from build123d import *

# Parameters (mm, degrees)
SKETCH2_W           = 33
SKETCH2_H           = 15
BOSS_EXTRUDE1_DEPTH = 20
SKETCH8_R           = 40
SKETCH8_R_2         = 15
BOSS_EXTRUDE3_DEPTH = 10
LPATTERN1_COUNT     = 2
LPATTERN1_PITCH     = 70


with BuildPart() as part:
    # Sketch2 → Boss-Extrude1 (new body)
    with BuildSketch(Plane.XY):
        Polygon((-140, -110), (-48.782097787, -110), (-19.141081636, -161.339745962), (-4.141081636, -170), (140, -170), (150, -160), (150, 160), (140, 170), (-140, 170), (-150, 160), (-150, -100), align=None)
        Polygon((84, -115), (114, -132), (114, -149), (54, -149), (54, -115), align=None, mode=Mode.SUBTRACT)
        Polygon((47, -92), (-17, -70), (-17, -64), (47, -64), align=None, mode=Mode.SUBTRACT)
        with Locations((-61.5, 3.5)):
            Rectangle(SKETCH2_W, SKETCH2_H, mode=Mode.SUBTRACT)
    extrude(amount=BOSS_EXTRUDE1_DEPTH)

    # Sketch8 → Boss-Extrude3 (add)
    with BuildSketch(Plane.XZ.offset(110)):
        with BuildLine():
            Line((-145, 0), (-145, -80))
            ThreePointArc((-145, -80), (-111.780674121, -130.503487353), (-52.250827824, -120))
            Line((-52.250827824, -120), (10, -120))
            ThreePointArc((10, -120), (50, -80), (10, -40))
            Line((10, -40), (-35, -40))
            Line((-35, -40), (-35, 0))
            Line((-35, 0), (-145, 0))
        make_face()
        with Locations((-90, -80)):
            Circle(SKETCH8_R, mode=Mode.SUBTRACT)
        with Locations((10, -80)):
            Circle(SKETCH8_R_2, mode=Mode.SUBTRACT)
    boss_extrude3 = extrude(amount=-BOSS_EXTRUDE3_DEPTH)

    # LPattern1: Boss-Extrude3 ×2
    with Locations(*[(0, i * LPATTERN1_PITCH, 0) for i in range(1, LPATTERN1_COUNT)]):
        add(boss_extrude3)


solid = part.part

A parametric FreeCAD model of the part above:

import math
import FreeCAD as App
import Part
import Sketcher

V = App.Vector
Q = App.Units.Quantity


def add_polygon(sketch, points):
    """Adds a closed chain of lines whose ends are joined by coincident constraints."""
    first, n = sketch.GeometryCount, len(points)
    for a, b in zip(points, points[1:] + points[:1]):
        sketch.addGeometry(Part.LineSegment(App.Vector(*a, 0), App.Vector(*b, 0)), False)
    for i in range(n):
        sketch.addConstraint(Sketcher.Constraint("Coincident", first + i, 2, first + (i + 1) % n, 1))

doc = App.newDocument("Part")
body = doc.addObject("PartDesign::Body", "Body")

# Sketch on XY plane
sketch1 = body.newObject("Sketcher::SketchObject", "Sketch")
sketch1.AttachmentSupport = (doc.getObject("XY_Plane"), [""])
sketch1.MapMode = "FlatFace"
add_polygon(sketch1, [(-140, -110), (-49, -110), (-19, -161), (-4, -170), (140, -170), (150, -160), (150, 160), (140, 170), (-140, 170), (-150, 160), (-150, -100)])  # lines 0-10
add_polygon(sketch1, [(47, -64), (47, -92), (-17, -70), (-17, -64)])  # lines 11-14
add_polygon(sketch1, [(54, -115), (84, -115), (114, -132), (114, -149), (54, -149)])  # lines 15-19
add_polygon(sketch1, [(-45, -4), (-78, -4), (-78, 11), (-45, 11)])  # lines 20-23
sketch1.addConstraint([
    Sketcher.Constraint("Horizontal", 0),
    Sketcher.Constraint("Horizontal", 3),
    Sketcher.Constraint("Vertical", 5),
    Sketcher.Constraint("Horizontal", 7),
    Sketcher.Constraint("Vertical", 9),
    Sketcher.Constraint("Vertical", 11),
    Sketcher.Constraint("Vertical", 13),
    Sketcher.Constraint("Horizontal", 14),
    Sketcher.Constraint("Horizontal", 15),
    Sketcher.Constraint("Vertical", 17),
    Sketcher.Constraint("Horizontal", 18),
    Sketcher.Constraint("Vertical", 19),
    Sketcher.Constraint("Horizontal", 20),
    Sketcher.Constraint("Vertical", 21),
    Sketcher.Constraint("Horizontal", 22),
    Sketcher.Constraint("Vertical", 23),
    Sketcher.Constraint("Symmetric", 3, 2, 7, 2, -1, 1),
    Sketcher.Constraint("Symmetric", 4, 2, 8, 2, -1, 1),
    Sketcher.Constraint("Perpendicular", 4, 6),
    Sketcher.Constraint("Perpendicular", 8, 10),
    Sketcher.Constraint("Horizontal", 5, 2, 8, 2),
    Sketcher.Constraint("Vertical", 3, 2, 6, 2),
    Sketcher.Constraint("Vertical", 7, 2, 10, 2),
    Sketcher.Constraint("DistanceX", 7, 2, 7, 1, Q("280 mm")),
    Sketcher.Constraint("DistanceX", 14, 1, 14, 2, Q("64 mm")),
    Sketcher.Constraint("DistanceX", 15, 1, 15, 2, Q("30 mm")),
    Sketcher.Constraint("DistanceX", 18, 2, 18, 1, Q("60 mm")),
    Sketcher.Constraint("DistanceX", 20, 2, 20, 1, Q("33 mm")),
    Sketcher.Constraint("DistanceY", 5, 1, 5, 2, Q("320 mm")),
    Sketcher.Constraint("DistanceY", 9, 2, 9, 1, Q("260 mm")),
    Sketcher.Constraint("DistanceY", 11, 2, 11, 1, Q("28 mm")),
    Sketcher.Constraint("DistanceY", 13, 1, 13, 2, Q("6 mm")),
    Sketcher.Constraint("DistanceY", 17, 2, 17, 1, Q("17 mm")),
    Sketcher.Constraint("DistanceY", 19, 1, 19, 2, Q("34 mm")),
    Sketcher.Constraint("DistanceY", 21, 1, 21, 2, Q("15 mm")),
    Sketcher.Constraint("Angle", 1, Q("-60 deg")),
    Sketcher.Constraint("Angle", 2, Q("-30 deg")),
    Sketcher.Constraint("DistanceY", 0, 2, -1, 1, Q("110 mm")),
    Sketcher.Constraint("DistanceX", -1, 1, 11, 2, Q("47 mm")),
    Sketcher.Constraint("DistanceY", 11, 2, -1, 1, Q("92 mm")),
    Sketcher.Constraint("DistanceX", -1, 1, 15, 2, Q("84 mm")),
    Sketcher.Constraint("DistanceY", 15, 2, -1, 1, Q("115 mm")),
    Sketcher.Constraint("DistanceX", 20, 2, -1, 1, Q("78 mm")),
    Sketcher.Constraint("DistanceY", 20, 2, -1, 1, Q("4 mm")),
    Sketcher.Constraint("DistanceX", 1, 2, 2, 2, Q("15 mm")),
    Sketcher.Constraint("DistanceX", 3, 1, 3, 2, Q("144.141082 mm")),
])
pad1 = body.newObject("PartDesign::Pad", "Pad")
pad1.Profile = sketch1
pad1.Length = 20

# Sketch on XZ plane
sketch2 = body.newObject("Sketcher::SketchObject", "Sketch001")
sketch2.AttachmentSupport = (doc.getObject("XZ_Plane"), [""])
sketch2.MapMode = "FlatFace"
sketch2.AttachmentOffset = App.Placement(V(0, 0, 110), App.Rotation())
sketch2.addGeometry([
    Part.LineSegment(V(-145, 0, 0), V(-145, -80, 0)),  # 0
    Part.ArcOfCircle(Part.Circle(V(-90, -80, 0), V(0, 0, 1), 55), math.radians(180), math.radians(313)),  # 1
    Part.LineSegment(V(-52, -120, 0), V(10, -120, 0)),  # 2
    Part.ArcOfCircle(Part.Circle(V(10, -80, 0), V(0, 0, 1), 40), math.radians(-90), math.radians(90)),  # 3
    Part.LineSegment(V(10, -40, 0), V(-35, -40, 0)),  # 4
    Part.LineSegment(V(-35, -40, 0), V(-35, 0, 0)),  # 5
    Part.LineSegment(V(-35, 0, 0), V(-145, 0, 0)),  # 6
    Part.Circle(V(-90, -80, 0), V(0, 0, 1), 40),  # 7
    Part.Circle(V(10, -80, 0), V(0, 0, 1), 15),  # 8
], False)
sketch2.addConstraint([
    Sketcher.Constraint("Tangent", 0, 2, 1, 1),
    Sketcher.Constraint("Coincident", 1, 2, 2, 1),
    Sketcher.Constraint("Tangent", 2, 2, 3, 1),
    Sketcher.Constraint("Tangent", 3, 2, 4, 1),
    Sketcher.Constraint("Coincident", 4, 2, 5, 1),
    Sketcher.Constraint("Coincident", 5, 2, 6, 1),
    Sketcher.Constraint("Coincident", 6, 2, 0, 1),
    Sketcher.Constraint("Vertical", 0),
    Sketcher.Constraint("Horizontal", 2),
    Sketcher.Constraint("Horizontal", 4),
    Sketcher.Constraint("Vertical", 5),
    Sketcher.Constraint("Horizontal", 6),
    Sketcher.Constraint("Coincident", 7, 3, 1, 3),
    Sketcher.Constraint("Coincident", 8, 3, 3, 3),
    Sketcher.Constraint("Equal", 3, 7),
    Sketcher.Constraint("PointOnObject", 5, 2, -1),
    Sketcher.Constraint("Horizontal", 1, 3, 3, 3),
    Sketcher.Constraint("Diameter", 7, Q("80 mm")),
    Sketcher.Constraint("Diameter", 8, Q("30 mm")),
    Sketcher.Constraint("Radius", 1, Q("55 mm")),
    Sketcher.Constraint("DistanceX", 4, 2, 4, 1, Q("45 mm")),
    Sketcher.Constraint("DistanceX", 6, 2, 6, 1, Q("110 mm")),
    Sketcher.Constraint("DistanceY", 0, 2, 0, 1, Q("80 mm")),
    Sketcher.Constraint("DistanceX", 1, 3, -1, 1, Q("90 mm")),
])
pad2 = body.newObject("PartDesign::Pad", "Pad001")
pad2.Profile = sketch2
pad2.Length = 10
pad2.Reversed = True
doc.recompute()

linearpattern = body.newObject("PartDesign::LinearPattern", "LinearPattern")
linearpattern.Originals = [pad2]
linearpattern.Direction = (doc.getObject("Y_Axis"), [""])
linearpattern.Mode = "offset"
linearpattern.Offset = 70
linearpattern.Occurrences = 2
body.Tip = linearpattern

doc.recompute()
